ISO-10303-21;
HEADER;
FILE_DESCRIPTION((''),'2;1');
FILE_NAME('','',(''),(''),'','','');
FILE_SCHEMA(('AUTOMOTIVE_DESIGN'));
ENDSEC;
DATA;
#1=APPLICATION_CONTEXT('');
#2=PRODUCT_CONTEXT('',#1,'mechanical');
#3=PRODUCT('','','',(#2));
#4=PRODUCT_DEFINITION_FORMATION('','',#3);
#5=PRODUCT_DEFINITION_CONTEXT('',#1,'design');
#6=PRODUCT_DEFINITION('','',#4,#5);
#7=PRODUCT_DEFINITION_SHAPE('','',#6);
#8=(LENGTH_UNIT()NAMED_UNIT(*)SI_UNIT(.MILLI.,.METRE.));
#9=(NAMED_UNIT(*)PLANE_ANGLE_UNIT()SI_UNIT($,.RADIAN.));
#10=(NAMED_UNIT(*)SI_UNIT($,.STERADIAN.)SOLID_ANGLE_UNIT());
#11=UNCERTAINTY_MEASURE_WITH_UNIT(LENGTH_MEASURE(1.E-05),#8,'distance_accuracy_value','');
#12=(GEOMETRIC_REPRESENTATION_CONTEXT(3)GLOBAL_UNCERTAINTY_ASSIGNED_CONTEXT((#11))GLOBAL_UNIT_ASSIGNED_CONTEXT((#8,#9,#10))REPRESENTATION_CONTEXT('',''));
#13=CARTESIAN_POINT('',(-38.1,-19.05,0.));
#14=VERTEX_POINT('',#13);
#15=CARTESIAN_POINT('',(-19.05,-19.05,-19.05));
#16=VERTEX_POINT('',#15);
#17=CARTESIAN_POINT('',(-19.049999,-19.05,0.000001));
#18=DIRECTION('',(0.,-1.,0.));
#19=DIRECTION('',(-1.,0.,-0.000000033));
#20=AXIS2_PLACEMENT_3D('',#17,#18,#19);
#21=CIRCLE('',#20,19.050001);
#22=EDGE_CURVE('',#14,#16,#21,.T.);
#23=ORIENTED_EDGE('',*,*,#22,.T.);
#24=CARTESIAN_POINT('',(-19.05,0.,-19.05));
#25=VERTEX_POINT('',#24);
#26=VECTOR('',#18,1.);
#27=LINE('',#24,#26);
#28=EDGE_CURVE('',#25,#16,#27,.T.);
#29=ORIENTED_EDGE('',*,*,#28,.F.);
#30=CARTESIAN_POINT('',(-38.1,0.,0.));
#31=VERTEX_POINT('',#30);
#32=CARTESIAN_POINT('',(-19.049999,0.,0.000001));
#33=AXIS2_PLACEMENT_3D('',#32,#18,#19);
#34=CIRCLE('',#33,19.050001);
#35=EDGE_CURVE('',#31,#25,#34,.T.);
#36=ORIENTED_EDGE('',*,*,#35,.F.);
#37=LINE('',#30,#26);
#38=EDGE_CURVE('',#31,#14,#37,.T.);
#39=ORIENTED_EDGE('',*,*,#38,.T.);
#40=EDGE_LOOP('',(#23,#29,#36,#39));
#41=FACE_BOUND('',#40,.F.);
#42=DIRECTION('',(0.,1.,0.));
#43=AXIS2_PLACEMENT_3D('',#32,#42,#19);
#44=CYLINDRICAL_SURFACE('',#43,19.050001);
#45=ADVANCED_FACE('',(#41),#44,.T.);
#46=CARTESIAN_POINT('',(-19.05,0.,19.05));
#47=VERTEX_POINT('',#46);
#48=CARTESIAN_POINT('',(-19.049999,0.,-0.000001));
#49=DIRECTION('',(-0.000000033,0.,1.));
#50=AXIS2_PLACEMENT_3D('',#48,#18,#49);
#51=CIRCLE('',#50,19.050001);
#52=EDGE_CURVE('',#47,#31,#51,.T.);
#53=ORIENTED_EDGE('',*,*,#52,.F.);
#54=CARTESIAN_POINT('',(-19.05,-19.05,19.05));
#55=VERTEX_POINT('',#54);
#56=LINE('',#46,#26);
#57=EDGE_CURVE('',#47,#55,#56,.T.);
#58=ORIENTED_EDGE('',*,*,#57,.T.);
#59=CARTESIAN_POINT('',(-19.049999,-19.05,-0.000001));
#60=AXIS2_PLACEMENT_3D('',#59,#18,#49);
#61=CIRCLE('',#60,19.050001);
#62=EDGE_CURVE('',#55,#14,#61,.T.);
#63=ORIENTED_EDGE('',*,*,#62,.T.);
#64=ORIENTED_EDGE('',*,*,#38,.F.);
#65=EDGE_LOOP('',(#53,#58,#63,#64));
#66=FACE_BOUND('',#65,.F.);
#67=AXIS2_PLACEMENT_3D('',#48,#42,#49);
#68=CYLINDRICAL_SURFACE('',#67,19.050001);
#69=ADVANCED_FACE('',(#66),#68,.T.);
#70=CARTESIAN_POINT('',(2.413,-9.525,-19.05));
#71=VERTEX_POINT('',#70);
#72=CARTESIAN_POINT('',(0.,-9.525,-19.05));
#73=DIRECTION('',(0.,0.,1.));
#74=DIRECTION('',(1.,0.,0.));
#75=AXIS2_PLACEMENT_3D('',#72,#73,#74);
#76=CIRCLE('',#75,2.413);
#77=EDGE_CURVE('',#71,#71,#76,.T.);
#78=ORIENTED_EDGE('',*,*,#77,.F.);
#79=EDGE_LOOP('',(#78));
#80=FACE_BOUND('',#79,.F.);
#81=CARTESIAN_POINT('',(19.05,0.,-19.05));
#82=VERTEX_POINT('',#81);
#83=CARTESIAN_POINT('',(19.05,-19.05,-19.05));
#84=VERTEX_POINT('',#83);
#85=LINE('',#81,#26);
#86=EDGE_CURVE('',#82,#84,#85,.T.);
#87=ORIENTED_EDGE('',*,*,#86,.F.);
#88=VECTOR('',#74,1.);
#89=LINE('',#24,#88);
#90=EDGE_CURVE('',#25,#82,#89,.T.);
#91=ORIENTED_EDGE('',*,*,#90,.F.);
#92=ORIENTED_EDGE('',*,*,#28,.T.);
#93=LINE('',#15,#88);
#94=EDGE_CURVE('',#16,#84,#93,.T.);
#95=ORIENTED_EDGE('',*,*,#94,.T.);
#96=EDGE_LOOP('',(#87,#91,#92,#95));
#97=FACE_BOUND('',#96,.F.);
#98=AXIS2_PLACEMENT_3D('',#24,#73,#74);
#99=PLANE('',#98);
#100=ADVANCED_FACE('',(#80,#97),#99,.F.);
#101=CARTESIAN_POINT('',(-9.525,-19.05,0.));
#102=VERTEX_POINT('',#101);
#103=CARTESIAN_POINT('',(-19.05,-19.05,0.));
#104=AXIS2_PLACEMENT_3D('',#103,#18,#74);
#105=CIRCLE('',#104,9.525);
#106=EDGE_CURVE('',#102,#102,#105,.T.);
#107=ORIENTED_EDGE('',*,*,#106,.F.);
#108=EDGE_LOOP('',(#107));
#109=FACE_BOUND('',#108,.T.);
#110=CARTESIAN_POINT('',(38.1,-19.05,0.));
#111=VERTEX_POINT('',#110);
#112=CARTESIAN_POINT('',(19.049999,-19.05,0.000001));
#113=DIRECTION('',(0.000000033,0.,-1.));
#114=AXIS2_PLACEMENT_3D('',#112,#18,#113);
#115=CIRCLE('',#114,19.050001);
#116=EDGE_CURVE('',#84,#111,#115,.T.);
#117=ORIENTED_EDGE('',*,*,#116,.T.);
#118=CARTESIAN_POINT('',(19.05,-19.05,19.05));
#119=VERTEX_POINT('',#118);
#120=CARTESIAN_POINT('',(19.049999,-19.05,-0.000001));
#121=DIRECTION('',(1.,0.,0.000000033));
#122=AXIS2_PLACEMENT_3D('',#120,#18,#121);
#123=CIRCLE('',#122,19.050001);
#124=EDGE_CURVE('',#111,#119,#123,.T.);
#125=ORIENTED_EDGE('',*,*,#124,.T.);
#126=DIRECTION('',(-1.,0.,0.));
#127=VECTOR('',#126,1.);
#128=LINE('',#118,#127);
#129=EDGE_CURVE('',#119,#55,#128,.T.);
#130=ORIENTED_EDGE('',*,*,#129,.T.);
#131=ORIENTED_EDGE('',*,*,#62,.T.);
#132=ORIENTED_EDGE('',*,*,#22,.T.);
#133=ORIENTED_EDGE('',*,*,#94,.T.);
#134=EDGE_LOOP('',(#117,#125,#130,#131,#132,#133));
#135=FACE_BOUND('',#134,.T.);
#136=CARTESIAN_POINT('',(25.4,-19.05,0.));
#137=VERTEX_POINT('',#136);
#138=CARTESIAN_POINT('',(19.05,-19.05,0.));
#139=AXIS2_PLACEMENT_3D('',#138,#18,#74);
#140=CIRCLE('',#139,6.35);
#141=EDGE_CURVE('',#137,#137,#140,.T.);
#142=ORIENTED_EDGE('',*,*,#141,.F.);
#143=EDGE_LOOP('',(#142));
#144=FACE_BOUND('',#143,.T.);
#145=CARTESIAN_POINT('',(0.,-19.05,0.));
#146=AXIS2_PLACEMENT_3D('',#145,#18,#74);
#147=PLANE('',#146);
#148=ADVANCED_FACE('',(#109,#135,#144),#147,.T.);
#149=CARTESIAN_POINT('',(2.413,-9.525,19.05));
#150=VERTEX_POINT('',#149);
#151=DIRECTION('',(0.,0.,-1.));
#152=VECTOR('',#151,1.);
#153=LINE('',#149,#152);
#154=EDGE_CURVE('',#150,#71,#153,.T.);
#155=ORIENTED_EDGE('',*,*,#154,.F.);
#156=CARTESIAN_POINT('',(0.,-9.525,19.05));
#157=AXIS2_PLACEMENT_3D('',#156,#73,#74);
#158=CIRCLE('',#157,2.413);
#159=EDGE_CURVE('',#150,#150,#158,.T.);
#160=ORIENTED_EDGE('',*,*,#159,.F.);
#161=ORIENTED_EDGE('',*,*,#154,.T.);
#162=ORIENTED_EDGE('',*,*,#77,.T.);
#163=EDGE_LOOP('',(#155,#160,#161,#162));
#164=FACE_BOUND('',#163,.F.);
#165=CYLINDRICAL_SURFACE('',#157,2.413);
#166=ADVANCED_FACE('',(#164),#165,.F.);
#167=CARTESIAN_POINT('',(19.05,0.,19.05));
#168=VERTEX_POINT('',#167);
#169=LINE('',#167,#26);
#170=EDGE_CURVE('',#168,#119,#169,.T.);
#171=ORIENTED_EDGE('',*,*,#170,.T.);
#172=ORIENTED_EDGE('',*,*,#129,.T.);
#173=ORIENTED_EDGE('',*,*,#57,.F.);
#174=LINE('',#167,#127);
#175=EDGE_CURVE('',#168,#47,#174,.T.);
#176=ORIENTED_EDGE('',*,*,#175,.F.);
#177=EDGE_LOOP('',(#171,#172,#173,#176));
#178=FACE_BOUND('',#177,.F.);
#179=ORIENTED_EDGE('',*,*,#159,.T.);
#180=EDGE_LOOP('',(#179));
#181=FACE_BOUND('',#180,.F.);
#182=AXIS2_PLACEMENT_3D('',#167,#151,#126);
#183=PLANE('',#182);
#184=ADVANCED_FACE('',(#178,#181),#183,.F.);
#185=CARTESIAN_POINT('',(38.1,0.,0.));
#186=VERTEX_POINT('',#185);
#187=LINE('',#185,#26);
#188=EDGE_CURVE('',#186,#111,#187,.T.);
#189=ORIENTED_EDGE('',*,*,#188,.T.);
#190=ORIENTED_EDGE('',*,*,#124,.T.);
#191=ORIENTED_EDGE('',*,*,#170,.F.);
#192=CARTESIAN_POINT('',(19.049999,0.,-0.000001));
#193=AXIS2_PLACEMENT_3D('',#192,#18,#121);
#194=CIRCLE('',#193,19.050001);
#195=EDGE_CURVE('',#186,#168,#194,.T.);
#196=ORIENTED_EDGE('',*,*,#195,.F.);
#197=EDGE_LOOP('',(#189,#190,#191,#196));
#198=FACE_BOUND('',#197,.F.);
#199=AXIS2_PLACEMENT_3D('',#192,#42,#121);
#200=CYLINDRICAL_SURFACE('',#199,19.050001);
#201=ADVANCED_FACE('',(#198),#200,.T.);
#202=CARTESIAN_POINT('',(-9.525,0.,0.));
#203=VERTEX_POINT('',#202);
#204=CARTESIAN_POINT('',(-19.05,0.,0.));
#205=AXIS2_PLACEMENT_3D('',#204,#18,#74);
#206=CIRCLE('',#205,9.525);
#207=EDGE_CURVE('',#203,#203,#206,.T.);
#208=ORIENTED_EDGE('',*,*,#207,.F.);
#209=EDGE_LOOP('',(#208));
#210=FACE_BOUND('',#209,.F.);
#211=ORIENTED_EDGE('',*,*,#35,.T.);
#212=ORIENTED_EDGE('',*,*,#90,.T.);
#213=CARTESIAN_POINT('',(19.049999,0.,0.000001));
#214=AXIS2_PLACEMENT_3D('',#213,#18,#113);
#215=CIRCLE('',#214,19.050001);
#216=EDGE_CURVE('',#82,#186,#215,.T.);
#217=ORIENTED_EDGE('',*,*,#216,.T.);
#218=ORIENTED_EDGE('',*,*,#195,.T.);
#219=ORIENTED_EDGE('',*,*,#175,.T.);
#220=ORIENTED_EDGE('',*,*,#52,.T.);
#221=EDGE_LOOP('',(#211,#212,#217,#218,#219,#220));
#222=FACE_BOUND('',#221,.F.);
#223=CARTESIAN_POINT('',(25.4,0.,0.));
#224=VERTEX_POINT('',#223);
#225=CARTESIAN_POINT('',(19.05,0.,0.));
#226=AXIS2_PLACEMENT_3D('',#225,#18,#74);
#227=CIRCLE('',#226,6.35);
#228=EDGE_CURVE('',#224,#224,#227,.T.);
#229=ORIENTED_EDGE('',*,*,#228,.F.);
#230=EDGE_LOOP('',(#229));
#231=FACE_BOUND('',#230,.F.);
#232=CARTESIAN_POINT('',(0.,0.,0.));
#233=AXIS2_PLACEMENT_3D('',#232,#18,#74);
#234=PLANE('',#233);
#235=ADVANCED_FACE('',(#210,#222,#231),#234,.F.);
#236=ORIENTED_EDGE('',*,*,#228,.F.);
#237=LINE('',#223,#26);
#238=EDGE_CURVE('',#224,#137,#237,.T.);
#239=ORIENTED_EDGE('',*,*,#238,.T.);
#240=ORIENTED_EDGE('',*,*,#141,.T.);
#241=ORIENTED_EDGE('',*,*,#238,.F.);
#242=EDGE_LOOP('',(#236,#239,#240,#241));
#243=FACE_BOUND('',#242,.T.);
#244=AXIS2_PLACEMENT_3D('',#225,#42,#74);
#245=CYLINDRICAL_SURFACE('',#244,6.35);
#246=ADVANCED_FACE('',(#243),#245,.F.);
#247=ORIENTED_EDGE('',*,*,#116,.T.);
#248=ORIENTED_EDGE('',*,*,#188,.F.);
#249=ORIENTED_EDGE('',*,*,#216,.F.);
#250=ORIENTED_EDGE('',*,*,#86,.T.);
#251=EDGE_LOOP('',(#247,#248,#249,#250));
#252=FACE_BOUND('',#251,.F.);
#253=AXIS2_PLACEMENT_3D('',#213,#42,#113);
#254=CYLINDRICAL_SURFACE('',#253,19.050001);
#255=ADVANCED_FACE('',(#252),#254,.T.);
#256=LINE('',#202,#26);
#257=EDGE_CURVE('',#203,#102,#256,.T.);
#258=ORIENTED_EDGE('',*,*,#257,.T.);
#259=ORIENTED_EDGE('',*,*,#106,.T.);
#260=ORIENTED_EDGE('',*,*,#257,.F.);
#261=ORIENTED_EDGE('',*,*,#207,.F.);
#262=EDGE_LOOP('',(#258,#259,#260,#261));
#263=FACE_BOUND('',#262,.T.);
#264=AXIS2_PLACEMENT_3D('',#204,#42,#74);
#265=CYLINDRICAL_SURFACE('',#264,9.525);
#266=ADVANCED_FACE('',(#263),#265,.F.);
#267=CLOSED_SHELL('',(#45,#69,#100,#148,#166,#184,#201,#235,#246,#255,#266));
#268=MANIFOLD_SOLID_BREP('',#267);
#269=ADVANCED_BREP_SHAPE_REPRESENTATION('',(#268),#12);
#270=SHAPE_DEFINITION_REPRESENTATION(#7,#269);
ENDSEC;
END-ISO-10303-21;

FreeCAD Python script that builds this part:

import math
import FreeCAD as App
import Part
import Sketcher

V = App.Vector
Q = App.Units.Quantity

doc = App.newDocument("Part")
body = doc.addObject("PartDesign::Body", "Body")

# Sketch on XZ plane
sketch1 = body.newObject("Sketcher::SketchObject", "Sketch")
sketch1.AttachmentSupport = (doc.getObject("XZ_Plane"), [""])
sketch1.MapMode = "FlatFace"
sketch1.addGeometry([
    Part.ArcOfCircle(Part.Circle(V(19, 0, 0), V(0, 0, 1), 19), math.radians(0), math.radians(90)),  # 0
    Part.LineSegment(V(19, 19, 0), V(-19, 19, 0)),  # 1
    Part.ArcOfCircle(Part.Circle(V(-19, 0, 0), V(0, 0, 1), 19), math.radians(90), math.radians(180)),  # 2
    Part.ArcOfCircle(Part.Circle(V(-19, 0, 0), V(0, 0, 1), 19), math.radians(-180), math.radians(-90)),  # 3
    Part.LineSegment(V(-19, -19, 0), V(19, -19, 0)),  # 4
    Part.ArcOfCircle(Part.Circle(V(19, 0, 0), V(0, 0, 1), 19), math.radians(-90), math.radians(0)),  # 5
    Part.Circle(V(-19, 0, 0), V(0, 0, 1), 10),  # 6
    Part.Circle(V(19, 0, 0), V(0, 0, 1), 6),  # 7
], False)
sketch1.addConstraint([
    Sketcher.Constraint("Tangent", 0, 2, 1, 1),
    Sketcher.Constraint("Tangent", 1, 2, 2, 1),
    Sketcher.Constraint("Tangent", 2, 2, 3, 1),
    Sketcher.Constraint("Tangent", 3, 2, 4, 1),
    Sketcher.Constraint("Tangent", 4, 2, 5, 1),
    Sketcher.Constraint("Tangent", 5, 2, 0, 1),
    Sketcher.Constraint("Horizontal", 1),
    Sketcher.Constraint("Horizontal", 4),
    Sketcher.Constraint("Coincident", 6, 3, 2, 3),
    Sketcher.Constraint("Coincident", 7, 3, 0, 3),
    Sketcher.Constraint("Equal", 0, 2),
    Sketcher.Constraint("Equal", 2, 3),
    Sketcher.Constraint("Symmetric", 0, 3, 2, 3, -1, 1),
    Sketcher.Constraint("PointOnObject", 2, 2, -1),
    Sketcher.Constraint("PointOnObject", 5, 2, -1),
    Sketcher.Constraint("Diameter", 7, Q("0.5 in")),
    Sketcher.Constraint("Diameter", 6, Q("0.75 in")),
    Sketcher.Constraint("Radius", 0, Q("0.75 in")),
    Sketcher.Constraint("DistanceX", 1, 2, 1, 1, Q("1.5 in")),
])
pad1 = body.newObject("PartDesign::Pad", "Pad")
pad1.Profile = sketch1
pad1.Length = Q("0.75 in")

# Sketch on XY plane
sketch2 = body.newObject("Sketcher::SketchObject", "Sketch001")
sketch2.AttachmentSupport = (doc.getObject("XY_Plane"), [""])
sketch2.MapMode = "FlatFace"
sketch2.AttachmentOffset = App.Placement(V(0, 0, 0.75 * 25.4), App.Rotation())
sketch2.addGeometry(Part.Circle(V(0, -9.5, 0), V(0, 0, 1), 2.4), False)
sketch2.addConstraint([
    Sketcher.Constraint("PointOnObject", 0, 3, -2),
    Sketcher.Constraint("Diameter", 0, Q("0.19 in")),
    Sketcher.Constraint("DistanceY", 0, 3, -1, 1, Q("0.375 in")),
])
pocket1 = body.newObject("PartDesign::Pocket", "Pocket")
pocket1.Profile = sketch2
pocket1.Length = Q("1.5 in")

doc.recompute()
